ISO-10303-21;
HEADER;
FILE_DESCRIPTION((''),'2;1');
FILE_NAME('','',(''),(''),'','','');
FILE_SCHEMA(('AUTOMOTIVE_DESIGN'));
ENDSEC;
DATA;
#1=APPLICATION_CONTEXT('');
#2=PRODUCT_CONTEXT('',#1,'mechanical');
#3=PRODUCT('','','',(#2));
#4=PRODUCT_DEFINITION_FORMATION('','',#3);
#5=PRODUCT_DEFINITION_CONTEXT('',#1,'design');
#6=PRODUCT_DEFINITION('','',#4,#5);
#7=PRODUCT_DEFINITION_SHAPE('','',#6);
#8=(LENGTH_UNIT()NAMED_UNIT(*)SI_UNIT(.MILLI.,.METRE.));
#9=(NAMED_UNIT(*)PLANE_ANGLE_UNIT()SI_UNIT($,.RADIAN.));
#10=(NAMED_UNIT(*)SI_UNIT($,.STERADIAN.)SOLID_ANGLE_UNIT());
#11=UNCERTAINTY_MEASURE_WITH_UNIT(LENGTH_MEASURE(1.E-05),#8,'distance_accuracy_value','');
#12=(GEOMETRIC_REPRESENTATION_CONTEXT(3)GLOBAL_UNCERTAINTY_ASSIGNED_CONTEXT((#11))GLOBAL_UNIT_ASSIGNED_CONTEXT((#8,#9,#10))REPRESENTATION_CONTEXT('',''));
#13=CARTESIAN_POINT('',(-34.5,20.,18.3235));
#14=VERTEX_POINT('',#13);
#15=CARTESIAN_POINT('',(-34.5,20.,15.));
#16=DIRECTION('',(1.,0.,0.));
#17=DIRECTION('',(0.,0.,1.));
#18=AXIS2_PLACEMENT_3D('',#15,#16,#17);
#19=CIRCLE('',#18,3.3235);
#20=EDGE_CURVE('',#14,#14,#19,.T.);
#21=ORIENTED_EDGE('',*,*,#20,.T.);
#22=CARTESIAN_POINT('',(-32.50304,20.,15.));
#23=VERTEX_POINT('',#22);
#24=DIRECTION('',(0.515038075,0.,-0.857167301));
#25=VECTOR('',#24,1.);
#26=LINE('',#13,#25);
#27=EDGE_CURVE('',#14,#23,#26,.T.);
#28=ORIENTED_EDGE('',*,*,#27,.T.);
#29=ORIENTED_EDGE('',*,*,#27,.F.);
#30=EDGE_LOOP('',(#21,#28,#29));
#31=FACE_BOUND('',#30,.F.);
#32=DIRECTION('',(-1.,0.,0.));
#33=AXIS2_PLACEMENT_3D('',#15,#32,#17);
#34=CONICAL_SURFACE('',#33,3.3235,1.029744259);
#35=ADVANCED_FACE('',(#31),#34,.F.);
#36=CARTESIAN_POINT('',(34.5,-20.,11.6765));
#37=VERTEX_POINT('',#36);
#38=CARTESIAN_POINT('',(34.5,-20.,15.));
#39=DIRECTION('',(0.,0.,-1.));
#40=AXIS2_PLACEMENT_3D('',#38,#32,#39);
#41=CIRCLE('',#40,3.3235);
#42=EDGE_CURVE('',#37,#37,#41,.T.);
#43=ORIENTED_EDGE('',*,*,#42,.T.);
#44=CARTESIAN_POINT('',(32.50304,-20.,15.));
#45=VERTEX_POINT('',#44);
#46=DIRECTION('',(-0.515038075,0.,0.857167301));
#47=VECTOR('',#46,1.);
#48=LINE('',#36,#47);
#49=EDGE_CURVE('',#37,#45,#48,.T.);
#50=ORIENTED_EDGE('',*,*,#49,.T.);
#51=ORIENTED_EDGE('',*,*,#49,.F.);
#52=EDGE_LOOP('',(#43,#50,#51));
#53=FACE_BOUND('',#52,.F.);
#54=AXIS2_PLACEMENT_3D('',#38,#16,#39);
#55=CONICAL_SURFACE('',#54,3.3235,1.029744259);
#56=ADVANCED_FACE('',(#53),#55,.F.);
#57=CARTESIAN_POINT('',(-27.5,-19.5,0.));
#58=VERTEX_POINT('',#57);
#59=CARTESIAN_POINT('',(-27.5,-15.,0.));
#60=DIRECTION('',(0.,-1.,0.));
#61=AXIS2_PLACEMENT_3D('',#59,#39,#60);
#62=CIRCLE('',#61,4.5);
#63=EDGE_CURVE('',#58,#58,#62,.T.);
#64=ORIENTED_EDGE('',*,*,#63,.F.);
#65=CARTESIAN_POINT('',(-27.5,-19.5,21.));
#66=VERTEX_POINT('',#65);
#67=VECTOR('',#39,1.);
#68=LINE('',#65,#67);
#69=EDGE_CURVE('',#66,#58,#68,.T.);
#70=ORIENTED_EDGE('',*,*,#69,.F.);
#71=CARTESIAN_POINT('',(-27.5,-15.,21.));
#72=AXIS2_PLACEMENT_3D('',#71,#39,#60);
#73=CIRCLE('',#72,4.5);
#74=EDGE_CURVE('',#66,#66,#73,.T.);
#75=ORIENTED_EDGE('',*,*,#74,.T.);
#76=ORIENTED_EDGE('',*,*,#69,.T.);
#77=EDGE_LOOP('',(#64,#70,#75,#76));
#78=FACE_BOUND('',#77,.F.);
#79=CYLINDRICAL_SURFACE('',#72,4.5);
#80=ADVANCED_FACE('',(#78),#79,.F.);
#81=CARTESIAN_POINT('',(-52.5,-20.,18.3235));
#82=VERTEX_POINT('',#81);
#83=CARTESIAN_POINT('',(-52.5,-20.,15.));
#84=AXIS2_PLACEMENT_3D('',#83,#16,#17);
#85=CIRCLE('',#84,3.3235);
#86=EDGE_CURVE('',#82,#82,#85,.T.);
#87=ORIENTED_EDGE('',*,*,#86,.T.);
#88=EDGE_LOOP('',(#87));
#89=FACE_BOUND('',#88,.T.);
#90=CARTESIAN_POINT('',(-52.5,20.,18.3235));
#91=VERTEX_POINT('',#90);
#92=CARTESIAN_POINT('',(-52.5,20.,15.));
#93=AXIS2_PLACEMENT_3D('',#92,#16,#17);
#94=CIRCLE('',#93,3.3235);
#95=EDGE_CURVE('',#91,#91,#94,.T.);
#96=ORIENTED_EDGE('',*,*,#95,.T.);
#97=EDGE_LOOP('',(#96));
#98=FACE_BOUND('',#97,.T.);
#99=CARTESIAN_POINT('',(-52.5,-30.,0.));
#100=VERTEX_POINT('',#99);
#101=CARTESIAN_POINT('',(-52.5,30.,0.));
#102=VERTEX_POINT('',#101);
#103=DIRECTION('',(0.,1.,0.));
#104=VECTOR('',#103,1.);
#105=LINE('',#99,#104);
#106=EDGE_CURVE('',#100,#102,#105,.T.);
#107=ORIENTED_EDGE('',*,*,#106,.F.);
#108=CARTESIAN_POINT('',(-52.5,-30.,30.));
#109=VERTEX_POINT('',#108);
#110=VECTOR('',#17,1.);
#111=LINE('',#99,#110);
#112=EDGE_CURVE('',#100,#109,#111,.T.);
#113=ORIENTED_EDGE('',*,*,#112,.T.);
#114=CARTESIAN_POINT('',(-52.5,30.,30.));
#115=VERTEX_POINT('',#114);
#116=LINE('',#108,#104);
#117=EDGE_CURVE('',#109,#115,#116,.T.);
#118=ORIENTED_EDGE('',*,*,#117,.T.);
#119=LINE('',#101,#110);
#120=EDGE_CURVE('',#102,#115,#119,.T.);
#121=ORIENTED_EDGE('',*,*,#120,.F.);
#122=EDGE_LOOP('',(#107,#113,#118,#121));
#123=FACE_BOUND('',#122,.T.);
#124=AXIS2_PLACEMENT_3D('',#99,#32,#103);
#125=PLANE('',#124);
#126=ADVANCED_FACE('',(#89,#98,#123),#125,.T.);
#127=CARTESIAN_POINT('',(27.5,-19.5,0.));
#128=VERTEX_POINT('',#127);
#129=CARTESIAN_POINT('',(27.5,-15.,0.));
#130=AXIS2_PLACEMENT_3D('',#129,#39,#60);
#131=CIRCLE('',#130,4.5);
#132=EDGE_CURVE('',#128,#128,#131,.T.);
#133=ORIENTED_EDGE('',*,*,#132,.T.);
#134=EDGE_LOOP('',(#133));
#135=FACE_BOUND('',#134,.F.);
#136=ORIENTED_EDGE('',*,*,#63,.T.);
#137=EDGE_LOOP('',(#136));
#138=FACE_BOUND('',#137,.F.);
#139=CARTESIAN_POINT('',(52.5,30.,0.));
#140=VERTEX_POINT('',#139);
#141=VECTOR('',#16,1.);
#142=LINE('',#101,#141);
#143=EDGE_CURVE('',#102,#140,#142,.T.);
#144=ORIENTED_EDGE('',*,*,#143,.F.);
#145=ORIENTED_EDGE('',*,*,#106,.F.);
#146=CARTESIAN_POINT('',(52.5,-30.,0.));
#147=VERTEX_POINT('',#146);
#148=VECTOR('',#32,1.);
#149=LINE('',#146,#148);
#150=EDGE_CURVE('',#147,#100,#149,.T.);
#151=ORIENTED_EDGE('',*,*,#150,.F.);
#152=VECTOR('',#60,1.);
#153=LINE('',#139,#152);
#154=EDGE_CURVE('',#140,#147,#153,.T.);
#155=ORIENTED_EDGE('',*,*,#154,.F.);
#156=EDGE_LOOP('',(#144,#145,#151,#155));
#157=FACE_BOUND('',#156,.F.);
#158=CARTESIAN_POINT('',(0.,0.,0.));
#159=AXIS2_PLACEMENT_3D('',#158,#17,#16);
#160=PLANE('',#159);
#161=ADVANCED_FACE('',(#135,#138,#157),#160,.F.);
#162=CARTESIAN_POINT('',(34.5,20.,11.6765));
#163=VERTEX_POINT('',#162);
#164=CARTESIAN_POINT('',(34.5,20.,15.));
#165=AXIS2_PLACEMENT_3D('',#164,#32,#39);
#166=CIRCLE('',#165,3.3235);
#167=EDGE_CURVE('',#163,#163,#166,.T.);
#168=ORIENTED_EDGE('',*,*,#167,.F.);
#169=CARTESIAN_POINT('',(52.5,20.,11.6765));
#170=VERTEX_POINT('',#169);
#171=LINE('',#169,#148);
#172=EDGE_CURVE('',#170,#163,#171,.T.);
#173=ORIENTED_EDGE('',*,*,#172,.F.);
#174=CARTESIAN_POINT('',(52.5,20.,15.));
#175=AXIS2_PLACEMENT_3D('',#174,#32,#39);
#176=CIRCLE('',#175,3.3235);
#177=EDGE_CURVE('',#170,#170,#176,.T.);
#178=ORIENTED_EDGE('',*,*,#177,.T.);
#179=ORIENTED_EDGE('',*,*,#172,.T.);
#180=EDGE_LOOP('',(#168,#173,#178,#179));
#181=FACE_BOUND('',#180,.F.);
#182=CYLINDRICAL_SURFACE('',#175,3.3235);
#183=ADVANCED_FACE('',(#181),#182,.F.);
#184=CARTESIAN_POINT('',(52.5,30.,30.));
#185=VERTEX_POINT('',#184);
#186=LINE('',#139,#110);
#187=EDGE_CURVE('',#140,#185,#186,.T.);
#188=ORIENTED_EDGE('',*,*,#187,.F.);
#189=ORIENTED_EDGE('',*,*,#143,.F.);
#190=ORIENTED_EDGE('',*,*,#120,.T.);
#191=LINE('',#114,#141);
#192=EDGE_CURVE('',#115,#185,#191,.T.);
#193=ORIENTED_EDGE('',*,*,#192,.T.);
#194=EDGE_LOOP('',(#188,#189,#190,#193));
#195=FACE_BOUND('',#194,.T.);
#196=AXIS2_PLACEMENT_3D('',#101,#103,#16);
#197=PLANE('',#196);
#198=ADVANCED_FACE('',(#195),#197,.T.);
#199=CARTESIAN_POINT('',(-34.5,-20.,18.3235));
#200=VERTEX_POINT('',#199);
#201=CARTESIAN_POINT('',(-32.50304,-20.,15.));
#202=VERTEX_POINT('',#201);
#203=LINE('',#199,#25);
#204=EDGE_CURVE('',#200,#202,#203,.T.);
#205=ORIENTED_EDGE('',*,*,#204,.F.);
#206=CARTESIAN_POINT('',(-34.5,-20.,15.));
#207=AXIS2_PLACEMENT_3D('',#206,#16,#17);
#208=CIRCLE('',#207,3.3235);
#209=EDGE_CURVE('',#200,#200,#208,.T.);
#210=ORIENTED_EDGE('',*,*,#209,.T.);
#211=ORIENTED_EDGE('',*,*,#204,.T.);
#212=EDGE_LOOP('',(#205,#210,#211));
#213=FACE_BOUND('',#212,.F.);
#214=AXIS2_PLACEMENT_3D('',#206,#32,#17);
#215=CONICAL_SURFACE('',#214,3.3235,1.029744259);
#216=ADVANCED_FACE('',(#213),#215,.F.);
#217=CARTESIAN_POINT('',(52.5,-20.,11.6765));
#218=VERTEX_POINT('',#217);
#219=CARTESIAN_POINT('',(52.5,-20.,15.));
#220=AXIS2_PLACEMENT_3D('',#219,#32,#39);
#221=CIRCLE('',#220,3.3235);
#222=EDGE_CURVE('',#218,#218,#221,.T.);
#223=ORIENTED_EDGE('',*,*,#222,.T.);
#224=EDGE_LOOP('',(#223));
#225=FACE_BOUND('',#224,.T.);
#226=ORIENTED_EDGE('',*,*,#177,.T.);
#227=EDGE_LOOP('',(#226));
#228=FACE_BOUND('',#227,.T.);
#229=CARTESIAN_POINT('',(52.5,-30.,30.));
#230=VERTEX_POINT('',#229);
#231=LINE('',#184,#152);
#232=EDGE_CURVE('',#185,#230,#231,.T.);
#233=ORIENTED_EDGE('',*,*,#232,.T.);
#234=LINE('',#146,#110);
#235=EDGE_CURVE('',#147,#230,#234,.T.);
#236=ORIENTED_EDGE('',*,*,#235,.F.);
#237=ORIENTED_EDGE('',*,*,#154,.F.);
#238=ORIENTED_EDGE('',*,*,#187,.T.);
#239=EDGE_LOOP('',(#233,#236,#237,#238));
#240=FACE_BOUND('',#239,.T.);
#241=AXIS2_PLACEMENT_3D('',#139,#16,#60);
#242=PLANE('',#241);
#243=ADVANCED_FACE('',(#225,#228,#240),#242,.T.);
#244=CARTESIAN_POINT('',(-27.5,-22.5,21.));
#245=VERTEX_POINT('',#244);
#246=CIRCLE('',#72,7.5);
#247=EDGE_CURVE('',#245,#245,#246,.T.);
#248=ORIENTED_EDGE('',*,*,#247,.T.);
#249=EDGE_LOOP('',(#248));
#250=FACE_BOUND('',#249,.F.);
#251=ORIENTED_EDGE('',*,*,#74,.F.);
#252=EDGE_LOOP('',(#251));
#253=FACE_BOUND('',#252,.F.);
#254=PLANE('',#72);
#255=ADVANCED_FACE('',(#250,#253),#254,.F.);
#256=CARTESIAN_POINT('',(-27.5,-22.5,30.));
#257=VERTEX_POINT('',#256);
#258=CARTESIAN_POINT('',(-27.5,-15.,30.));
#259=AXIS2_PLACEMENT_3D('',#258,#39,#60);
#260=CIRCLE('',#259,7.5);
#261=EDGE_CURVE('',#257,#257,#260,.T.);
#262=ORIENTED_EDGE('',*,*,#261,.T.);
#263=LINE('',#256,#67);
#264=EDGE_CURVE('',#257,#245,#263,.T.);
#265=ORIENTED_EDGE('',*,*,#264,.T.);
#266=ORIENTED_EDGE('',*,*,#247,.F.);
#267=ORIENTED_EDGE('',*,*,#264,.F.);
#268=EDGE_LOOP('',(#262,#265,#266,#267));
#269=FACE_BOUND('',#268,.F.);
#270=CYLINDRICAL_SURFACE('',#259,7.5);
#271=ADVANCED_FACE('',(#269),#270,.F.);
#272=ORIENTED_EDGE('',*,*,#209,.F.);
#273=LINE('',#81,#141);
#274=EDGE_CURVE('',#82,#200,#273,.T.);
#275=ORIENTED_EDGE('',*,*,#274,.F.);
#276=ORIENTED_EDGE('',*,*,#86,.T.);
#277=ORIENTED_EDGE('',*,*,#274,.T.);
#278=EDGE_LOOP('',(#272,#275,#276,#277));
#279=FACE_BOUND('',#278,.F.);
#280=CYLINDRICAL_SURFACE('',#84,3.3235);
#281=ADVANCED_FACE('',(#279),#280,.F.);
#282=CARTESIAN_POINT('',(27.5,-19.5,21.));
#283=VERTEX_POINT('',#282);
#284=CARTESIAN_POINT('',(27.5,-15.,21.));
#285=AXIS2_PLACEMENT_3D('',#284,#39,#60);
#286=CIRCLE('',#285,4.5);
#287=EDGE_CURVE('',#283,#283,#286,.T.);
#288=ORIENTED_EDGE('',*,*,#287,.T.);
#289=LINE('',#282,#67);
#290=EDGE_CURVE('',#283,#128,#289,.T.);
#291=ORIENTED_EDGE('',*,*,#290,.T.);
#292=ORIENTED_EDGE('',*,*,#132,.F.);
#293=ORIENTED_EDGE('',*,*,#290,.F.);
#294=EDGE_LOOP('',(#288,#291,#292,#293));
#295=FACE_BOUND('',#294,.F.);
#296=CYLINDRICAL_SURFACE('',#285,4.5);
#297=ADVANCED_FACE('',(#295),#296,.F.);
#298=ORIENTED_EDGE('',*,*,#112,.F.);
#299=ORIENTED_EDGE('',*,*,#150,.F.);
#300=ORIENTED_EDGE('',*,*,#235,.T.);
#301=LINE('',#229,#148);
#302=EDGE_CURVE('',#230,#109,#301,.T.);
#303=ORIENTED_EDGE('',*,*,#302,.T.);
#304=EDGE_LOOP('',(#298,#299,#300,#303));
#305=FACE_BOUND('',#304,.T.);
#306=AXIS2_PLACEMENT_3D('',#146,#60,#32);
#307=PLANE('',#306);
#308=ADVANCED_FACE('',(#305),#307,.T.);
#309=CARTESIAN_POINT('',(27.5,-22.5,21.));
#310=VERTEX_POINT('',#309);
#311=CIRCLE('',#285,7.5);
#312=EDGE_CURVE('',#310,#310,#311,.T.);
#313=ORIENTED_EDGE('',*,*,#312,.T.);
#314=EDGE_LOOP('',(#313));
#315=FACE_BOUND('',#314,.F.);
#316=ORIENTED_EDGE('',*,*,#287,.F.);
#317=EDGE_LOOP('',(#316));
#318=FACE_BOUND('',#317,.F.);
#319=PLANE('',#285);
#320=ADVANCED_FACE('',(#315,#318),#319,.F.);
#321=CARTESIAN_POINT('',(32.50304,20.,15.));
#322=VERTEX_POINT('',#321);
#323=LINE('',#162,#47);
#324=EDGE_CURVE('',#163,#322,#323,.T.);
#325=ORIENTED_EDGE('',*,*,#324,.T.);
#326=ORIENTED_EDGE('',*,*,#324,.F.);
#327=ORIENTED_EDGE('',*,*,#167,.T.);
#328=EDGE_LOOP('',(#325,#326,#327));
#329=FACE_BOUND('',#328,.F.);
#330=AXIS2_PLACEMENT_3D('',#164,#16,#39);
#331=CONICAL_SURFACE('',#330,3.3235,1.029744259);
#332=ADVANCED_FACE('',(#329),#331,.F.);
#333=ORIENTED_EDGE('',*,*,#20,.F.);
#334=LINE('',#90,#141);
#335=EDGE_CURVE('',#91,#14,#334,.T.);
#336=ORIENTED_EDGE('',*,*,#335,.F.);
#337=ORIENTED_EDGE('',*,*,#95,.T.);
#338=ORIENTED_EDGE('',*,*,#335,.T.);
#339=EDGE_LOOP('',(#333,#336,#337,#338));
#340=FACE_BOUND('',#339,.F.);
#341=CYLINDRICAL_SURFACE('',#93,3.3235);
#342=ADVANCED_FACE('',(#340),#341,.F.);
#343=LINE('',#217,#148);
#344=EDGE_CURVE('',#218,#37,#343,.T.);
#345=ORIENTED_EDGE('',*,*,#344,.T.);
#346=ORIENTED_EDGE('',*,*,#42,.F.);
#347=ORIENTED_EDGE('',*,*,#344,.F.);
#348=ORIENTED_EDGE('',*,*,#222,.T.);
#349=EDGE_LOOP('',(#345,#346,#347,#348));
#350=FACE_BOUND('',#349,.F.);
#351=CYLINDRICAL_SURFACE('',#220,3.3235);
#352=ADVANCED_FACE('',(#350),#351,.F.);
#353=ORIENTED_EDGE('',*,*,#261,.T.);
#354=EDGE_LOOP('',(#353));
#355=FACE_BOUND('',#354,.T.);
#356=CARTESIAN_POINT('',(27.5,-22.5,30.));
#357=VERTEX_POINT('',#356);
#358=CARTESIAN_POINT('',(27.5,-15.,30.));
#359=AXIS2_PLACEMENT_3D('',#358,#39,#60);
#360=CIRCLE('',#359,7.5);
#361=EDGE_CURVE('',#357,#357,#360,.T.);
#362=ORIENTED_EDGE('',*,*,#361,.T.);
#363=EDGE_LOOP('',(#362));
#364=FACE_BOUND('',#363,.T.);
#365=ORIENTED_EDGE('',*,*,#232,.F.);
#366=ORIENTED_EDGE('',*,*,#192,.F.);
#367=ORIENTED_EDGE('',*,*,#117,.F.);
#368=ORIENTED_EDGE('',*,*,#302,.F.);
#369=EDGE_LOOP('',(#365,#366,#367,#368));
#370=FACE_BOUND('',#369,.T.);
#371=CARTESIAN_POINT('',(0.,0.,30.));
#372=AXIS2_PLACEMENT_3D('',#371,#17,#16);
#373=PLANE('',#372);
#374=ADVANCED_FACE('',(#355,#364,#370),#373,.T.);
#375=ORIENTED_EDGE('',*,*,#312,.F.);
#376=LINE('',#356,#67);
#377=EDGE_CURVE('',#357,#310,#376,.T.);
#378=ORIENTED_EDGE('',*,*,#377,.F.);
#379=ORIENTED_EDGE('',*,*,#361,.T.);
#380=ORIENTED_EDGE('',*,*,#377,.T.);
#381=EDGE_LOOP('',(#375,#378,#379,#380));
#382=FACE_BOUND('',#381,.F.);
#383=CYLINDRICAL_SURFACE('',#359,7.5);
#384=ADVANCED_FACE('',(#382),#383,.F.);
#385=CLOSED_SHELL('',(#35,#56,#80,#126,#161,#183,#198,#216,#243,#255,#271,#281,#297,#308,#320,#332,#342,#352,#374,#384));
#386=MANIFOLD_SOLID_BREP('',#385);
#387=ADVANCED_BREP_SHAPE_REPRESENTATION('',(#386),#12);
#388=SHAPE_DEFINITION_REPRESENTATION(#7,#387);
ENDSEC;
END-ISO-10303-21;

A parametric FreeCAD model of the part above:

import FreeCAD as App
import Part
import Sketcher

V = App.Vector


def add_polygon(sketch, points):
    """Adds a closed chain of lines whose ends are joined by coincident constraints."""
    first, n = sketch.GeometryCount, len(points)
    for a, b in zip(points, points[1:] + points[:1]):
        sketch.addGeometry(Part.LineSegment(App.Vector(*a, 0), App.Vector(*b, 0)), False)
    for i in range(n):
        sketch.addConstraint(Sketcher.Constraint("Coincident", first + i, 2, first + (i + 1) % n, 1))

doc = App.newDocument("Part")
body = doc.addObject("PartDesign::Body", "Body")

# Sketch on XY plane
sketch1 = body.newObject("Sketcher::SketchObject", "Sketch")
sketch1.AttachmentSupport = (doc.getObject("XY_Plane"), [""])
sketch1.MapMode = "FlatFace"
add_polygon(sketch1, [(52.5, 30), (-52.5, 30), (-52.5, -30), (52.5, -30)])  # lines 0-3
sketch1.addConstraint(Sketcher.Constraint("Horizontal", 0))
sketch1.addConstraint(Sketcher.Constraint("Vertical", 1))
sketch1.addConstraint(Sketcher.Constraint("Horizontal", 2))
sketch1.addConstraint(Sketcher.Constraint("Vertical", 3))
sketch1.addConstraint(Sketcher.Constraint("Symmetric", 0, 2, 2, 2, -1, 1))
sketch1.addConstraint(Sketcher.Constraint("DistanceX", 0, 2, 0, 1, 105.0))
sketch1.addConstraint(Sketcher.Constraint("DistanceY", 1, 2, 1, 1, 60.0))
pad1 = body.newObject("PartDesign::Pad", "Pad")
pad1.Profile = sketch1
pad1.Length = 30

# Sketch on XY plane
sketch2 = body.newObject("Sketcher::SketchObject", "Sketch001")
sketch2.AttachmentSupport = (doc.getObject("XY_Plane"), [""])
sketch2.MapMode = "FlatFace"
sketch2.AttachmentOffset = App.Placement(V(0, 0, 30), App.Rotation())
sketch2.addGeometry(Part.Circle(V(-27.5, -15, 0), V(0, 0, 1), 4.5), False)
sketch2.addGeometry(Part.Circle(V(27.5, -15, 0), V(0, 0, 1), 4.5), False)
sketch2.addConstraint(Sketcher.Constraint("Equal", 0, 1))
sketch2.addConstraint(Sketcher.Constraint("Symmetric", 0, 3, 1, 3, -2))
sketch2.addConstraint(Sketcher.Constraint("Diameter", 0, 9.0))
sketch2.addConstraint(Sketcher.Constraint("DistanceY", 0, 3, -1, 1, 15.0))
sketch2.addConstraint(Sketcher.Constraint("DistanceX", 0, 3, 1, 3, 55.0))
doc.recompute()
hole = body.newObject("PartDesign::Hole", "Hole")
hole.Profile = sketch2
hole.ThreadType = "None"
hole.Diameter = 9
hole.DepthType = "ThroughAll"
hole.HoleCutType = "Counterbore"
hole.HoleCutDiameter = 15
hole.HoleCutDepth = 9

# Sketch on YZ plane
sketch3 = body.newObject("Sketcher::SketchObject", "Sketch002")
sketch3.AttachmentSupport = (doc.getObject("YZ_Plane"), [""])
sketch3.MapMode = "FlatFace"
sketch3.AttachmentOffset = App.Placement(V(0, 0, -52.5), App.Rotation())
sketch3.addGeometry(Part.Circle(V(20, 15, 0), V(0, 0, 1), 3.3235), False)
sketch3.addGeometry(Part.Circle(V(-20, 15, 0), V(0, 0, 1), 3.3235), False)
sketch3.addConstraint(Sketcher.Constraint("Equal", 0, 1))
sketch3.addConstraint(Sketcher.Constraint("Symmetric", 0, 3, 1, 3, -2))
sketch3.addConstraint(Sketcher.Constraint("Diameter", 0, 6.647))
sketch3.addConstraint(Sketcher.Constraint("DistanceX", -1, 1, 0, 3, 20.0))
sketch3.addConstraint(Sketcher.Constraint("DistanceY", -1, 1, 0, 3, 15.0))
doc.recompute()
hole2 = body.newObject("PartDesign::Hole", "Hole001")
hole2.Profile = sketch3
hole2.ThreadType = "None"
hole2.Diameter = 6.647
hole2.DepthType = "Dimension"
hole2.Depth = 18
hole2.DrillPoint = "Angled"
hole2.DrillPointAngle = 118
hole2.Reversed = True

# Sketch on YZ plane
sketch4 = body.newObject("Sketcher::SketchObject", "Sketch003")
sketch4.AttachmentSupport = (doc.getObject("YZ_Plane"), [""])
sketch4.MapMode = "FlatFace"
sketch4.AttachmentOffset = App.Placement(V(0, 0, 52.5), App.Rotation())
sketch4.addGeometry(Part.Circle(V(-20, 15, 0), V(0, 0, 1), 3.3235), False)
sketch4.addGeometry(Part.Circle(V(20, 15, 0), V(0, 0, 1), 3.3235), False)
sketch4.addConstraint(Sketcher.Constraint("Equal", 0, 1))
sketch4.addConstraint(Sketcher.Constraint("Symmetric", 0, 3, 1, 3, -2))
sketch4.addConstraint(Sketcher.Constraint("Diameter", 0, 6.647))
sketch4.addConstraint(Sketcher.Constraint("DistanceX", 0, 3, -1, 1, 20.0))
sketch4.addConstraint(Sketcher.Constraint("DistanceY", -1, 1, 0, 3, 15.0))
doc.recompute()
hole3 = body.newObject("PartDesign::Hole", "Hole002")
hole3.Profile = sketch4
hole3.ThreadType = "None"
hole3.Diameter = 6.647
hole3.DepthType = "Dimension"
hole3.Depth = 18
hole3.DrillPoint = "Angled"
hole3.DrillPointAngle = 118

doc.recompute()
